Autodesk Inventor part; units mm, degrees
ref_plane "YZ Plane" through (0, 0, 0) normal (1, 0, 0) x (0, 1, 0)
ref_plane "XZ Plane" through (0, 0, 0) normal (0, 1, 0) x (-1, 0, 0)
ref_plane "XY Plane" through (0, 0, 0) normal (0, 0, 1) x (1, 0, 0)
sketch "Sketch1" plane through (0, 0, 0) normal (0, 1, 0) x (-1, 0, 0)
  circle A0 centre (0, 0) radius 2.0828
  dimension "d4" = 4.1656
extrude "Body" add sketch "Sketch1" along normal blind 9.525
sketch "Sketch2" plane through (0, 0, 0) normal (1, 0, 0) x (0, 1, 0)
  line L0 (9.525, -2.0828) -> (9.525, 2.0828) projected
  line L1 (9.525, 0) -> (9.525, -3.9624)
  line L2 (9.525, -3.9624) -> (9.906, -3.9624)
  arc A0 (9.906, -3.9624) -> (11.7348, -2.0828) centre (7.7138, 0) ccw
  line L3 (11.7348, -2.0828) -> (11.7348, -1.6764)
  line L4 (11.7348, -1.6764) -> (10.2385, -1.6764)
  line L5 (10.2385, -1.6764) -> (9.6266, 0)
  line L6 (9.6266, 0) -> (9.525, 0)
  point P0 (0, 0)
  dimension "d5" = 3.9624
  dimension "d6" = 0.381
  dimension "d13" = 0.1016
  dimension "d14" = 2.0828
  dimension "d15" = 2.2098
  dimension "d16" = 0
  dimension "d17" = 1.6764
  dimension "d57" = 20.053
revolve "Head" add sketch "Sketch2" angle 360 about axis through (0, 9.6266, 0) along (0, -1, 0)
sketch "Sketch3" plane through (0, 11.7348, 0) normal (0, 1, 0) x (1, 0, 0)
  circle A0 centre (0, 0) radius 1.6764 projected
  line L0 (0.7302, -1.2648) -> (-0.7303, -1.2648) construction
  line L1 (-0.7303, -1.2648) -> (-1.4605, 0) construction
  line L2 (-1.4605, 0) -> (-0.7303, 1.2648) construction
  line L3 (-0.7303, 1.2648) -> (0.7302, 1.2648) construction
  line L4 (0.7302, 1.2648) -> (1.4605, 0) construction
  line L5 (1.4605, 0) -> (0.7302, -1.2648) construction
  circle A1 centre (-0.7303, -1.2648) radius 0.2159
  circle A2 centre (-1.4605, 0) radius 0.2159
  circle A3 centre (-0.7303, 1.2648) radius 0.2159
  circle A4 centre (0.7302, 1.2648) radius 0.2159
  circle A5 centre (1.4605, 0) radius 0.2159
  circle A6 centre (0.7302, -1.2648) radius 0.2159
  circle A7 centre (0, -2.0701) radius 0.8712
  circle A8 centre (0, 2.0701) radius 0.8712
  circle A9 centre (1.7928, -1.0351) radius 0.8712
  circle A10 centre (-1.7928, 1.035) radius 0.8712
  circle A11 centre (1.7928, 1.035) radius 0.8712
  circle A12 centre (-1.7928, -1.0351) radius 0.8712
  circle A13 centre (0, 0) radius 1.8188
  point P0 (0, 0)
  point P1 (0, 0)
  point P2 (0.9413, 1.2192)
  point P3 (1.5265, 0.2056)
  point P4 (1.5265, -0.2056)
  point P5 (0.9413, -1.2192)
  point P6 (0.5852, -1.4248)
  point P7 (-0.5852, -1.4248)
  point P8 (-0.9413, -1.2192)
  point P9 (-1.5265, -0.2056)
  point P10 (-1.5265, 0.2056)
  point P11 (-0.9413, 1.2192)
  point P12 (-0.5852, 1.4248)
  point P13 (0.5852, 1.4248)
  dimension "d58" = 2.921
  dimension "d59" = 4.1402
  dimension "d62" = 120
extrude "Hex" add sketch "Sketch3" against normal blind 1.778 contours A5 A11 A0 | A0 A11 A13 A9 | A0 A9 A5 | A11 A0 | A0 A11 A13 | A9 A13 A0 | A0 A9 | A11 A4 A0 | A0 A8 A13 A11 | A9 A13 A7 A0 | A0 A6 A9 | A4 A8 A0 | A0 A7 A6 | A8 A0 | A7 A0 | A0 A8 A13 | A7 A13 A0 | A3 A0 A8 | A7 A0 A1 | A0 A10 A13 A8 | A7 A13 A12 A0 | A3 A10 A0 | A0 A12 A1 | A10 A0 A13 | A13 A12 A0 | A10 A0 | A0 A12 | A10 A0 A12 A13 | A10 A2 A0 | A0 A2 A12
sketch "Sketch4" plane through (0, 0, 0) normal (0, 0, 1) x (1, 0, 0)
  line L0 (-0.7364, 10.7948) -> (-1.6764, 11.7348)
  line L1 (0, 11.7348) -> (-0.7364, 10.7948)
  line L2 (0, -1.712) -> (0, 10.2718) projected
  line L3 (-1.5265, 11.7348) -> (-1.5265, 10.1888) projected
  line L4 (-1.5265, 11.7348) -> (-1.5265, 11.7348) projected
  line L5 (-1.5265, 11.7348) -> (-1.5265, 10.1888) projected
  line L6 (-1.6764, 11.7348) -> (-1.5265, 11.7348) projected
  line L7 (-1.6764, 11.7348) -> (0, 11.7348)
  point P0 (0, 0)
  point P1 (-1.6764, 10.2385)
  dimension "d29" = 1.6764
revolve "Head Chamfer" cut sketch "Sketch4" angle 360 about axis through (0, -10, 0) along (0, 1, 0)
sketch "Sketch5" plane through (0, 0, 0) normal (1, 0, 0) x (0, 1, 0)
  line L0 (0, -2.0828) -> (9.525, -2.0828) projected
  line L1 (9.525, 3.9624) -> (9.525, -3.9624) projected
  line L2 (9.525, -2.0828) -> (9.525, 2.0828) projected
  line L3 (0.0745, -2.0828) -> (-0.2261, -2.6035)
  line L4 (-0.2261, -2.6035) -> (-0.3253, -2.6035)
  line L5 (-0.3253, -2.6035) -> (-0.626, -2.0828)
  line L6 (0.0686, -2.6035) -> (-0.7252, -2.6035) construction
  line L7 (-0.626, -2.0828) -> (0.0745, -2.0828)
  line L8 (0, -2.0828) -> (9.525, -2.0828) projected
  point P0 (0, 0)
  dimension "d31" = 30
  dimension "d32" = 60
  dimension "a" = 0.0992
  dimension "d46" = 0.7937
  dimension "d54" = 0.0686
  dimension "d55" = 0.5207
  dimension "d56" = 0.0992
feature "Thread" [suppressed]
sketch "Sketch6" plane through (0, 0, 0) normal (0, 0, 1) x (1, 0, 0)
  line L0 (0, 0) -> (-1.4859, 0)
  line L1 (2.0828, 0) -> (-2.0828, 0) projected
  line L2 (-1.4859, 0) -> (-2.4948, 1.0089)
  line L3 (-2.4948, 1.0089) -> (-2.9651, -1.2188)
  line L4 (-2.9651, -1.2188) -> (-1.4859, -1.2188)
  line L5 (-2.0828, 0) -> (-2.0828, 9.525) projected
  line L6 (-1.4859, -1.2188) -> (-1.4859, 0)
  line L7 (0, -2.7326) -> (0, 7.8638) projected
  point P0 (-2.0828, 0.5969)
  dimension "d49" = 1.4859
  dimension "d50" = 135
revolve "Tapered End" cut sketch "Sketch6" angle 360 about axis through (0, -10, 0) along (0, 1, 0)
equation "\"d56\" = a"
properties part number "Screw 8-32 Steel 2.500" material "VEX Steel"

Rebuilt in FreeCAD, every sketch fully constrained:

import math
import FreeCAD as App
import Part
import Sketcher
Q = App.Units.Quantity

doc = App.newDocument("Part")
body = doc.addObject("PartDesign::Body", "Body")

# Sketch on XZ plane
sketch1 = body.newObject("Sketcher::SketchObject", "Sketch")
sketch1.AttachmentSupport = (doc.getObject("XZ_Plane"), [""])
sketch1.MapMode = "FlatFace"
sketch1.addGeometry(Part.Circle(App.Vector(0, 0, 0), App.Vector(0, 0, 1), 2.1), False)
sketch1.addConstraint([
    Sketcher.Constraint("Coincident", 0, 3, -1, 1),
    Sketcher.Constraint("Diameter", 0, Q("0.164 in")),
])
pad1 = body.newObject("PartDesign::Pad", "Pad")
pad1.Profile = sketch1
pad1.Length = Q("0.375 in")
pad1.Reversed = True

# Sketch on YZ plane
sketch2 = body.newObject("Sketcher::SketchObject", "Sketch001")
sketch2.AttachmentSupport = (doc.getObject("YZ_Plane"), [""])
sketch2.MapMode = "FlatFace"
sketch2.addGeometry([
    Part.LineSegment(App.Vector(9.53, 0, 0), App.Vector(9.53, -3.96, 0)),  # 0
    Part.LineSegment(App.Vector(9.53, -3.96, 0), App.Vector(9.91, -3.96, 0)),  # 1
    Part.ArcOfCircle(Part.Circle(App.Vector(7.71, 0, 0), App.Vector(0, 0, 1), 4.53), math.radians(-61), math.radians(-27)),  # 2
    Part.LineSegment(App.Vector(11.73, -2.08, 0), App.Vector(11.73, -1.68, 0)),  # 3
    Part.LineSegment(App.Vector(11.73, -1.68, 0), App.Vector(10.24, -1.68, 0)),  # 4
    Part.LineSegment(App.Vector(10.24, -1.68, 0), App.Vector(9.63, 0, 0)),  # 5
    Part.LineSegment(App.Vector(9.63, 0, 0), App.Vector(9.53, 0, 0)),  # 6
], False)
sketch2.addConstraint([
    Sketcher.Constraint("Coincident", 0, 2, 1, 1),
    Sketcher.Constraint("Coincident", 1, 2, 2, 1),
    Sketcher.Constraint("Coincident", 2, 2, 3, 1),
    Sketcher.Constraint("Coincident", 3, 2, 4, 1),
    Sketcher.Constraint("Coincident", 4, 2, 5, 1),
    Sketcher.Constraint("Coincident", 5, 2, 6, 1),
    Sketcher.Constraint("Coincident", 6, 2, 0, 1),
    Sketcher.Constraint("Vertical", 0),
    Sketcher.Constraint("Horizontal", 1),
    Sketcher.Constraint("Vertical", 3),
    Sketcher.Constraint("Horizontal", 4),
    Sketcher.Constraint("Horizontal", 6),
    Sketcher.Constraint("PointOnObject", 2, 3, -1),
    Sketcher.Constraint("PointOnObject", 5, 2, -1),
    Sketcher.Constraint("DistanceX", 1, 1, 1, 2, Q("0.015 in")),
    Sketcher.Constraint("DistanceX", 6, 2, 6, 1, Q("0.004 in")),
    Sketcher.Constraint("DistanceY", 0, 2, 0, 1, Q("0.156 in")),
    Sketcher.Constraint("DistanceY", 2, 2, -1, 1, Q("0.082 in")),
    Sketcher.Constraint("DistanceY", 3, 2, -1, 1, Q("0.066 in")),
    Sketcher.Constraint("DistanceX", 0, 2, 2, 2, Q("0.087 in")),
    Sketcher.Constraint("DistanceX", -1, 1, 1, 2, Q("0.39 in")),
    Sketcher.Constraint("DistanceX", 4, 2, 4, 1, Q("0.0589 in")),
])
revolution = body.newObject("PartDesign::Revolution", "Revolution")
revolution.Profile = sketch2
revolution.ReferenceAxis = (sketch2, ["H_Axis"])
revolution.Angle = 360

# Sketch on XZ plane
sketch3 = body.newObject("Sketcher::SketchObject", "Sketch002")
sketch3.AttachmentSupport = (doc.getObject("XZ_Plane"), [""])
sketch3.MapMode = "FlatFace"
sketch3.AttachmentOffset = App.Placement(App.Vector(0, 0, -0.462 * 25.4), App.Rotation())
sketch3.addGeometry([
    Part.Circle(App.Vector(0, 0, 0), App.Vector(0, 0, 1), 1.82),  # 0
    Part.ArcOfCircle(Part.Circle(App.Vector(1.46, 0, 0), App.Vector(0, 0, 1), 0.22), math.radians(-72), math.radians(72)),  # 1
    Part.ArcOfCircle(Part.Circle(App.Vector(1.79, 1.04, 0), App.Vector(0, 0, 1), 0.87), math.radians(168), math.radians(252)),  # 2
    Part.ArcOfCircle(Part.Circle(App.Vector(0.73, 1.26, 0), App.Vector(0, 0, 1), 0.22), math.radians(-12), math.radians(132)),  # 3
    Part.ArcOfCircle(Part.Circle(App.Vector(0, 2.07, 0), App.Vector(0, 0, 1), 0.87), math.radians(-132), math.radians(-48)),  # 4
    Part.ArcOfCircle(Part.Circle(App.Vector(-0.73, 1.26, 0), App.Vector(0, 0, 1), 0.22), math.radians(48), math.radians(192)),  # 5
    Part.ArcOfCircle(Part.Circle(App.Vector(-1.79, 1.04, 0), App.Vector(0, 0, 1), 0.87), math.radians(-72), math.radians(12)),  # 6
    Part.ArcOfCircle(Part.Circle(App.Vector(-1.46, 0, 0), App.Vector(0, 0, 1), 0.22), math.radians(108), math.radians(252)),  # 7
    Part.ArcOfCircle(Part.Circle(App.Vector(-1.79, -1.03, 0), App.Vector(0, 0, 1), 0.87), math.radians(-12), math.radians(72)),  # 8
    Part.ArcOfCircle(Part.Circle(App.Vector(-0.73, -1.26, 0), App.Vector(0, 0, 1), 0.22), math.radians(168), math.radians(312)),  # 9
    Part.ArcOfCircle(Part.Circle(App.Vector(0, -2.07, 0), App.Vector(0, 0, 1), 0.87), math.radians(48), math.radians(132)),  # 10
    Part.ArcOfCircle(Part.Circle(App.Vector(0.73, -1.26, 0), App.Vector(0, 0, 1), 0.22), math.radians(-132), math.radians(12)),  # 11
    Part.ArcOfCircle(Part.Circle(App.Vector(1.79, -1.03, 0), App.Vector(0, 0, 1), 0.87), math.radians(108), math.radians(192)),  # 12
], False)
sketch3.addConstraint([
    Sketcher.Constraint("Tangent", 1, 2, 2, 2),
    Sketcher.Constraint("Tangent", 2, 1, 3, 1),
    Sketcher.Constraint("Tangent", 3, 2, 4, 2),
    Sketcher.Constraint("Tangent", 4, 1, 5, 1),
    Sketcher.Constraint("Tangent", 5, 2, 6, 2),
    Sketcher.Constraint("Tangent", 6, 1, 7, 1),
    Sketcher.Constraint("Tangent", 7, 2, 8, 2),
    Sketcher.Constraint("Tangent", 8, 1, 9, 1),
    Sketcher.Constraint("Tangent", 9, 2, 10, 2),
    Sketcher.Constraint("Tangent", 10, 1, 11, 1),
    Sketcher.Constraint("Tangent", 11, 2, 12, 2),
    Sketcher.Constraint("Tangent", 12, 1, 1, 1),
    Sketcher.Constraint("Coincident", 0, 3, -1, 1),
    Sketcher.Constraint("Equal", 1, 3),
    Sketcher.Constraint("Equal", 2, 4),
    Sketcher.Constraint("Equal", 3, 5),
    Sketcher.Constraint("Equal", 4, 6),
    Sketcher.Constraint("Equal", 5, 7),
    Sketcher.Constraint("Equal", 6, 8),
    Sketcher.Constraint("Equal", 7, 9),
    Sketcher.Constraint("Equal", 8, 10),
    Sketcher.Constraint("Equal", 9, 11),
    Sketcher.Constraint("Equal", 10, 12),
    Sketcher.Constraint("Symmetric", 1, 3, 7, 3, -1, 1),
    Sketcher.Constraint("Symmetric", 3, 3, 9, 3, -1, 1),
    Sketcher.Constraint("Symmetric", 5, 3, 11, 3, -1, 1),
    Sketcher.Constraint("Symmetric", 3, 3, 5, 3, -2),
    Sketcher.Constraint("PointOnObject", 1, 3, -1),
    Sketcher.Constraint("Radius", 1, Q("0.0085 in")),
    Sketcher.Constraint("Radius", 2, Q("0.0343 in")),
    Sketcher.Constraint("Diameter", 0, 3.6376),
    Sketcher.Constraint("DistanceY", -1, 1, 2, 1, Q("0.048 in")),
    Sketcher.Constraint("DistanceX", -1, 1, 1, 3, Q("0.0575 in")),
    Sketcher.Constraint("DistanceY", -1, 1, 3, 3, Q("0.0498 in")),
])
pad2 = body.newObject("PartDesign::Pad", "Pad001")
pad2.Profile = sketch3
pad2.Length = Q("0.07 in")

# Sketch on XY plane
sketch4 = body.newObject("Sketcher::SketchObject", "Sketch003")
sketch4.AttachmentSupport = (doc.getObject("XY_Plane"), [""])
sketch4.MapMode = "FlatFace"
sketch4.addGeometry([
    Part.LineSegment(App.Vector(-0.7364, 10.7948, 0), App.Vector(0, 11.7348, 0)),
    Part.LineSegment(App.Vector(0, 11.7348, 0), App.Vector(-1.6764, 11.7348, 0)),
    Part.LineSegment(App.Vector(-1.6764, 11.7348, 0), App.Vector(-0.7364, 10.7948, 0)),
], False)
sketch4.addConstraint([
    Sketcher.Constraint("Coincident", 0, 2, 1, 1),
    Sketcher.Constraint("Coincident", 1, 2, 2, 1),
    Sketcher.Constraint("Coincident", 2, 2, 0, 1),
    Sketcher.Constraint("Horizontal", 1),
    Sketcher.Constraint("PointOnObject", 0, 2, -2),
    Sketcher.Constraint("DistanceX", 1, 2, 1, 1, Q("0.066 in")),
    Sketcher.Constraint("Distance", 0, Q("0.047 in")),
    Sketcher.Constraint("DistanceY", -1, 1, 0, 2, Q("0.462 in")),
    Sketcher.Constraint("DistanceX", 2, 2, -1, 1, Q("0.029 in")),
])
groove = body.newObject("PartDesign::Groove", "Groove")
groove.Profile = sketch4
groove.ReferenceAxis = (sketch4, ["V_Axis"])
groove.Angle = 360

# Sketch on XY plane
sketch5 = body.newObject("Sketcher::SketchObject", "Sketch004")
sketch5.AttachmentSupport = (doc.getObject("XY_Plane"), [""])
sketch5.MapMode = "FlatFace"
sketch5.addGeometry([
    Part.LineSegment(App.Vector(-1.5, -1.2, 0), App.Vector(-1.5, 0, 0)),
    Part.LineSegment(App.Vector(-1.5, 0, 0), App.Vector(-2.5, 1, 0)),
    Part.LineSegment(App.Vector(-2.5, 1, 0), App.Vector(-3, -1.2, 0)),
    Part.LineSegment(App.Vector(-3, -1.2, 0), App.Vector(-1.5, -1.2, 0)),
], False)
sketch5.addConstraint([
    Sketcher.Constraint("Coincident", 0, 2, 1, 1),
    Sketcher.Constraint("Coincident", 1, 2, 2, 1),
    Sketcher.Constraint("Coincident", 2, 2, 3, 1),
    Sketcher.Constraint("Coincident", 3, 2, 0, 1),
    Sketcher.Constraint("Vertical", 0),
    Sketcher.Constraint("Horizontal", 3),
    Sketcher.Constraint("PointOnObject", 0, 2, -1),
    Sketcher.Constraint("Angle", 1, Q("135 deg")),
    Sketcher.Constraint("DistanceX", 0, 2, -1, 1, Q("0.0585 in")),
    Sketcher.Constraint("Angle", 2, Q("-101.921 deg")),
    Sketcher.Constraint("DistanceX", 3, 1, 3, 2, 1.4792),
    Sketcher.Constraint("DistanceY", 0, 1, 0, 2, 1.2188),
])
groove2 = body.newObject("PartDesign::Groove", "Groove001")
groove2.Profile = sketch5
groove2.ReferenceAxis = (sketch5, ["V_Axis"])
groove2.Angle = 360

doc.recompute()
